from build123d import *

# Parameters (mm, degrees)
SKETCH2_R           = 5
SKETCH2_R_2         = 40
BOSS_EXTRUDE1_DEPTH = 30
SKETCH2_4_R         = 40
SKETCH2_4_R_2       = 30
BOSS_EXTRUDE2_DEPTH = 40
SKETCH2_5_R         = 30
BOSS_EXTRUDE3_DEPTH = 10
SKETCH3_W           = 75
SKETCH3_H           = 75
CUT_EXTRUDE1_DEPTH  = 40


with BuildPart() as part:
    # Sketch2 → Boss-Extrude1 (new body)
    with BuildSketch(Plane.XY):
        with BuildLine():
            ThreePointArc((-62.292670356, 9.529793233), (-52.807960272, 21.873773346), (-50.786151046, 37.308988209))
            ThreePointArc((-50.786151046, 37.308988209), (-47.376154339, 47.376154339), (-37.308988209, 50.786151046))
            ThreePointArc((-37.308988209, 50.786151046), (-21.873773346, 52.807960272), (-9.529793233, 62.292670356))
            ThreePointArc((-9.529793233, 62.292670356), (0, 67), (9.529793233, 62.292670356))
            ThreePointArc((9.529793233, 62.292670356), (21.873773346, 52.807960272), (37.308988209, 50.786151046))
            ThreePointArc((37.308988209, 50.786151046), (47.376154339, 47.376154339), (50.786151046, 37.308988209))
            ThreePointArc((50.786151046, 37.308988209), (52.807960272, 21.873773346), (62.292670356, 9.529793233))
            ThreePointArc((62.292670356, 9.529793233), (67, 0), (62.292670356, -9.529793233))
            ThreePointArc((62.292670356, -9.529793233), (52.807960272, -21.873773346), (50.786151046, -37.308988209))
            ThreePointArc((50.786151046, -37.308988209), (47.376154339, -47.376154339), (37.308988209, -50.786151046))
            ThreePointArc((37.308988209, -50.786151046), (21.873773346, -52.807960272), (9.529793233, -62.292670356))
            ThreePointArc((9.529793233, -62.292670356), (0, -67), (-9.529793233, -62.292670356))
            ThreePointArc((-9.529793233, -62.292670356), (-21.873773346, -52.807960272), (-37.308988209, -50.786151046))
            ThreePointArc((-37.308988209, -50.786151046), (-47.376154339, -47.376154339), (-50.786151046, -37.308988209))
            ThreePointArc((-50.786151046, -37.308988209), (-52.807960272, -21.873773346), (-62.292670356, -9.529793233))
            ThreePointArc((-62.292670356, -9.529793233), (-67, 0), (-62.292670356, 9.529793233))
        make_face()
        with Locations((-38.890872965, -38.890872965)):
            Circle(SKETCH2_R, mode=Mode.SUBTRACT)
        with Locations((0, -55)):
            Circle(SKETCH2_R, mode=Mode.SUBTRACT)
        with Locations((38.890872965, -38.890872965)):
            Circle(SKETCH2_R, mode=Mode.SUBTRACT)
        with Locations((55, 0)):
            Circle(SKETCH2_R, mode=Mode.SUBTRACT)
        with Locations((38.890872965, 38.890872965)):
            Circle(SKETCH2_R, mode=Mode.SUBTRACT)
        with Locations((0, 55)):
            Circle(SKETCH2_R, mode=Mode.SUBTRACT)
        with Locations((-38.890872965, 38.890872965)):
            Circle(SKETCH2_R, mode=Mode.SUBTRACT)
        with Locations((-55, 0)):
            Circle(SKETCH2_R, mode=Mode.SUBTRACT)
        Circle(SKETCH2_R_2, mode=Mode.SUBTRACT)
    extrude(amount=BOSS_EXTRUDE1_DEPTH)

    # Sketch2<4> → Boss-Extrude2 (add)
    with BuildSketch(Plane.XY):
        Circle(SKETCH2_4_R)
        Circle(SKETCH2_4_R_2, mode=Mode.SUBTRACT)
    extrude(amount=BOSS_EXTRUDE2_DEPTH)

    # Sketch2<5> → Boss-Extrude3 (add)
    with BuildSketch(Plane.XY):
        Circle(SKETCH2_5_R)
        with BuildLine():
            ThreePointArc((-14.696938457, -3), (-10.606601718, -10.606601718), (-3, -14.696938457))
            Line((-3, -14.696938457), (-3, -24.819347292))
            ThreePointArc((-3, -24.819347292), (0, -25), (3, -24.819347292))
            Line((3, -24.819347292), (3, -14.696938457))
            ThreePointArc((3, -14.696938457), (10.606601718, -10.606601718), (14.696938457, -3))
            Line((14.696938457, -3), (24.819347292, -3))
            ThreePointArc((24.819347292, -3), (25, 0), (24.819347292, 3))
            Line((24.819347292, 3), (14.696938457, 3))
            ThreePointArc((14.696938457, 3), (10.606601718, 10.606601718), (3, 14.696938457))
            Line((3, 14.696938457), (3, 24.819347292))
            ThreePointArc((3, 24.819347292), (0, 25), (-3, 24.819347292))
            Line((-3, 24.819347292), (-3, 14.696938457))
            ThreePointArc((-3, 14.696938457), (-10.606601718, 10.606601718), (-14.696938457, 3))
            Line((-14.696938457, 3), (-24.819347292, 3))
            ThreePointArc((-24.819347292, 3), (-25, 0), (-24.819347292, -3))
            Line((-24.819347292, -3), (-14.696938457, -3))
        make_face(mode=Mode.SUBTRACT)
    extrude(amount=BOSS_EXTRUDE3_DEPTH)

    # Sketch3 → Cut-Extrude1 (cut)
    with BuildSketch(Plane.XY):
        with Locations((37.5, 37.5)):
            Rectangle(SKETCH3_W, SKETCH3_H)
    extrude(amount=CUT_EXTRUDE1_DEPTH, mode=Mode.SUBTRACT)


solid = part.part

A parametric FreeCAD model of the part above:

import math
import FreeCAD as App
import Part
import Sketcher

V = App.Vector
Q = App.Units.Quantity


def add_polygon(sketch, points):
    """Adds a closed chain of lines whose ends are joined by coincident constraints."""
    first, n = sketch.GeometryCount, len(points)
    for a, b in zip(points, points[1:] + points[:1]):
        sketch.addGeometry(Part.LineSegment(App.Vector(*a, 0), App.Vector(*b, 0)), False)
    for i in range(n):
        sketch.addConstraint(Sketcher.Constraint("Coincident", first + i, 2, first + (i + 1) % n, 1))

doc = App.newDocument("Part")
params = doc.addObject("Spreadsheet::Sheet", "Params")
for row, (alias, value) in enumerate([
    ("sketch1_diameter", "10 mm"),
    ("sketch1_diameter2", "80 mm"),
    ("sketch1_radius", "30 mm"),
    ("sketch1_radius2", "12 mm"),
    ("pad1_length", "30 mm"),
    ("sketch2_diameter", "80 mm"),
    ("sketch2_diameter2", "60 mm"),
    ("pad2_length", "40 mm"),
    ("sketch3_diameter", "60 mm"),
    ("sketch3_radius", "15 mm"),
    ("sketch3_radius2", "25 mm"),
    ("pad3_length", "10 mm"),
    ("sketch4_width", "75 mm"),
    ("pocket1_length", "40 mm"),
], start=1):
    params.set(f"A{row}", alias)
    params.set(f"B{row}", "=" + value)
    params.setAlias(f"B{row}", alias)

body = doc.addObject("PartDesign::Body", "Body")

sketch1 = body.newObject("Sketcher::SketchObject", "Sketch")
sketch1.AttachmentSupport = (doc.getObject("XY_Plane"), [""])
sketch1.MapMode = "FlatFace"
sketch1.addGeometry([
    Part.ArcOfCircle(Part.Circle(V(-81, 33, 0), V(0, 0, 1), 30), math.radians(-53), math.radians(8)),
    Part.ArcOfCircle(Part.Circle(V(-55, 0, 0), V(0, 0, 1), 12), math.radians(127), math.radians(233)),
    Part.ArcOfCircle(Part.Circle(V(-81, -33, 0), V(0, 0, 1), 30), math.radians(-8), math.radians(53)),
    Part.ArcOfCircle(Part.Circle(V(-39, -39, 0), V(0, 0, 1), 12), math.radians(172), math.radians(278)),
    Part.ArcOfCircle(Part.Circle(V(-33, -81, 0), V(0, 0, 1), 30), math.radians(37), math.radians(98)),
    Part.ArcOfCircle(Part.Circle(V(0, -55, 0), V(0, 0, 1), 12), math.radians(-143), math.radians(-37)),
    Part.ArcOfCircle(Part.Circle(V(33, -81, 0), V(0, 0, 1), 30), math.radians(82), math.radians(143)),
    Part.ArcOfCircle(Part.Circle(V(39, -39, 0), V(0, 0, 1), 12), math.radians(-98), math.radians(8)),
    Part.ArcOfCircle(Part.Circle(V(81, -33, 0), V(0, 0, 1), 30), math.radians(127), math.radians(188)),
    Part.ArcOfCircle(Part.Circle(V(55, 0, 0), V(0, 0, 1), 12), math.radians(-53), math.radians(53)),
    Part.ArcOfCircle(Part.Circle(V(81, 33, 0), V(0, 0, 1), 30), math.radians(172), math.radians(233)),
    Part.ArcOfCircle(Part.Circle(V(39, 39, 0), V(0, 0, 1), 12), math.radians(-8), math.radians(98)),
    Part.ArcOfCircle(Part.Circle(V(33, 81, 0), V(0, 0, 1), 30), math.radians(-143), math.radians(-82)),
    Part.ArcOfCircle(Part.Circle(V(0, 55, 0), V(0, 0, 1), 12), math.radians(37), math.radians(143)),
    Part.ArcOfCircle(Part.Circle(V(-33, 81, 0), V(0, 0, 1), 30), math.radians(-98), math.radians(-37)),
    Part.ArcOfCircle(Part.Circle(V(-39, 39, 0), V(0, 0, 1), 12), math.radians(82), math.radians(188)),
    Part.Circle(V(39, -39, 0), V(0, 0, 1), 5),
    Part.Circle(V(0, -55, 0), V(0, 0, 1), 5),
    Part.Circle(V(-39, -39, 0), V(0, 0, 1), 5),
    Part.Circle(V(55, 0, 0), V(0, 0, 1), 5),
    Part.Circle(V(39, 39, 0), V(0, 0, 1), 5),
    Part.Circle(V(0, 0, 0), V(0, 0, 1), 40),
    Part.Circle(V(-55, 0, 0), V(0, 0, 1), 5),
    Part.Circle(V(0, 55, 0), V(0, 0, 1), 5),
    Part.Circle(V(-39, 39, 0), V(0, 0, 1), 5),
], False)
sketch1.addConstraint([
    Sketcher.Constraint("Tangent", 0, 1, 1, 1),
    Sketcher.Constraint("Tangent", 1, 2, 2, 2),
    Sketcher.Constraint("Tangent", 2, 1, 3, 1),
    Sketcher.Constraint("Tangent", 3, 2, 4, 2),
    Sketcher.Constraint("Tangent", 4, 1, 5, 1),
    Sketcher.Constraint("Tangent", 5, 2, 6, 2),
    Sketcher.Constraint("Tangent", 6, 1, 7, 1),
    Sketcher.Constraint("Tangent", 7, 2, 8, 2),
    Sketcher.Constraint("Tangent", 8, 1, 9, 1),
    Sketcher.Constraint("Tangent", 9, 2, 10, 2),
    Sketcher.Constraint("Tangent", 10, 1, 11, 1),
    Sketcher.Constraint("Tangent", 11, 2, 12, 2),
    Sketcher.Constraint("Tangent", 12, 1, 13, 1),
    Sketcher.Constraint("Tangent", 13, 2, 14, 2),
    Sketcher.Constraint("Tangent", 14, 1, 15, 1),
    Sketcher.Constraint("Tangent", 15, 2, 0, 2),
    Sketcher.Constraint("Coincident", 21, 3, -1, 1),
    Sketcher.Constraint("Coincident", 16, 3, 7, 3),
    Sketcher.Constraint("Coincident", 17, 3, 5, 3),
    Sketcher.Constraint("Coincident", 18, 3, 3, 3),
    Sketcher.Constraint("Coincident", 19, 3, 9, 3),
    Sketcher.Constraint("Coincident", 20, 3, 11, 3),
    Sketcher.Constraint("Coincident", 22, 3, 1, 3),
    Sketcher.Constraint("Coincident", 23, 3, 13, 3),
    Sketcher.Constraint("Coincident", 24, 3, 15, 3),
    Sketcher.Constraint("Equal", 0, 2),
    Sketcher.Constraint("Equal", 1, 3),
    Sketcher.Constraint("Equal", 2, 4),
    Sketcher.Constraint("Equal", 3, 5),
    Sketcher.Constraint("Equal", 4, 6),
    Sketcher.Constraint("Equal", 5, 7),
    Sketcher.Constraint("Equal", 6, 8),
    Sketcher.Constraint("Equal", 7, 9),
    Sketcher.Constraint("Equal", 8, 10),
    Sketcher.Constraint("Equal", 9, 11),
    Sketcher.Constraint("Equal", 10, 12),
    Sketcher.Constraint("Equal", 11, 13),
    Sketcher.Constraint("Equal", 12, 14),
    Sketcher.Constraint("Equal", 13, 15),
    Sketcher.Constraint("Equal", 16, 17),
    Sketcher.Constraint("Equal", 17, 18),
    Sketcher.Constraint("Equal", 18, 19),
    Sketcher.Constraint("Equal", 19, 20),
    Sketcher.Constraint("Equal", 20, 22),
    Sketcher.Constraint("Equal", 22, 23),
    Sketcher.Constraint("Equal", 23, 24),
    Sketcher.Constraint("Symmetric", 0, 3, 8, 3, -1, 1),
    Sketcher.Constraint("Symmetric", 2, 3, 10, 3, -1, 1),
    Sketcher.Constraint("Symmetric", 4, 3, 12, 3, -1, 1),
    Sketcher.Constraint("Symmetric", 6, 3, 14, 3, -1, 1),
    Sketcher.Constraint("Symmetric", 4, 3, 6, 3, -2),
    Sketcher.Constraint("Symmetric", 2, 3, 8, 3, -2),
    Sketcher.Constraint("Diameter", 16, Q("10 mm")),
    Sketcher.Constraint("Diameter", 21, Q("80 mm")),
    Sketcher.Constraint("Radius", 0, Q("30 mm")),
    Sketcher.Constraint("Radius", 1, Q("12 mm")),
    Sketcher.Constraint("DistanceX", 1, 3, -1, 1, Q("55 mm")),
    Sketcher.Constraint("DistanceY", 5, 3, -1, 1, Q("55 mm")),
    Sketcher.Constraint("DistanceX", 0, 1, -1, 1, Q("62.29267 mm")),
    Sketcher.Constraint("DistanceX", 2, 1, -1, 1, Q("50.786151 mm")),
])
sketch1.setExpression("Constraints[52]", "Params.sketch1_diameter")
sketch1.setExpression("Constraints[53]", "Params.sketch1_diameter2")
sketch1.setExpression("Constraints[54]", "Params.sketch1_radius")
sketch1.setExpression("Constraints[55]", "Params.sketch1_radius2")
pad1 = body.newObject("PartDesign::Pad", "Pad")
pad1.Profile = sketch1
pad1.setExpression("Length", "Params.pad1_length")

sketch2 = body.newObject("Sketcher::SketchObject", "Sketch001")
sketch2.AttachmentSupport = (doc.getObject("XY_Plane"), [""])
sketch2.MapMode = "FlatFace"
sketch2.addGeometry([
    Part.Circle(V(0, 0, 0), V(0, 0, 1), 40),
    Part.Circle(V(0, 0, 0), V(0, 0, 1), 30),
], False)
sketch2.addConstraint([
    Sketcher.Constraint("Coincident", 0, 3, -1, 1),
    Sketcher.Constraint("Coincident", 1, 3, -1, 1),
    Sketcher.Constraint("Diameter", 0, Q("80 mm")),
    Sketcher.Constraint("Diameter", 1, Q("60 mm")),
])
sketch2.setExpression("Constraints[2]", "Params.sketch2_diameter")
sketch2.setExpression("Constraints[3]", "Params.sketch2_diameter2")
pad2 = body.newObject("PartDesign::Pad", "Pad001")
pad2.Profile = sketch2
pad2.setExpression("Length", "Params.pad2_length")

sketch3 = body.newObject("Sketcher::SketchObject", "Sketch002")
sketch3.AttachmentSupport = (doc.getObject("XY_Plane"), [""])
sketch3.MapMode = "FlatFace"
sketch3.addGeometry([
    Part.Circle(V(0, 0, 0), V(0, 0, 1), 30),
    Part.ArcOfCircle(Part.Circle(V(0, 0, 0), V(0, 0, 1), 15), math.radians(-168), math.radians(-102)),
    Part.LineSegment(V(-15, -3, 0), V(-25, -3, 0)),
    Part.ArcOfCircle(Part.Circle(V(0, 0, 0), V(0, 0, 1), 25), math.radians(173.11), math.radians(186.89)),
    Part.LineSegment(V(-25, 3, 0), V(-15, 3, 0)),
    Part.ArcOfCircle(Part.Circle(V(0, 0, 0), V(0, 0, 1), 15), math.radians(102), math.radians(168)),
    Part.LineSegment(V(-3, 15, 0), V(-3, 25, 0)),
    Part.ArcOfCircle(Part.Circle(V(0, 0, 0), V(0, 0, 1), 25), math.radians(83.11), math.radians(96.89)),
    Part.LineSegment(V(3, 25, 0), V(3, 15, 0)),
    Part.ArcOfCircle(Part.Circle(V(0, 0, 0), V(0, 0, 1), 15), math.radians(12), math.radians(78)),
    Part.LineSegment(V(15, 3, 0), V(25, 3, 0)),
    Part.ArcOfCircle(Part.Circle(V(0, 0, 0), V(0, 0, 1), 25), math.radians(-6.89), math.radians(6.89)),
    Part.LineSegment(V(25, -3, 0), V(15, -3, 0)),
    Part.ArcOfCircle(Part.Circle(V(0, 0, 0), V(0, 0, 1), 15), math.radians(-78), math.radians(-12)),
    Part.LineSegment(V(3, -15, 0), V(3, -25, 0)),
    Part.ArcOfCircle(Part.Circle(V(0, 0, 0), V(0, 0, 1), 25), math.radians(-96.89), math.radians(-83.11)),
    Part.LineSegment(V(-3, -25, 0), V(-3, -15, 0)),
], False)
sketch3.addConstraint([
    Sketcher.Constraint("Coincident", 1, 1, 2, 1),
    Sketcher.Constraint("Coincident", 2, 2, 3, 2),
    Sketcher.Constraint("Coincident", 3, 1, 4, 1),
    Sketcher.Constraint("Coincident", 4, 2, 5, 2),
    Sketcher.Constraint("Coincident", 5, 1, 6, 1),
    Sketcher.Constraint("Coincident", 6, 2, 7, 2),
    Sketcher.Constraint("Coincident", 7, 1, 8, 1),
    Sketcher.Constraint("Coincident", 8, 2, 9, 2),
    Sketcher.Constraint("Coincident", 9, 1, 10, 1),
    Sketcher.Constraint("Coincident", 10, 2, 11, 2),
    Sketcher.Constraint("Coincident", 11, 1, 12, 1),
    Sketcher.Constraint("Coincident", 12, 2, 13, 2),
    Sketcher.Constraint("Coincident", 13, 1, 14, 1),
    Sketcher.Constraint("Coincident", 14, 2, 15, 2),
    Sketcher.Constraint("Coincident", 15, 1, 16, 1),
    Sketcher.Constraint("Coincident", 16, 2, 1, 2),
    Sketcher.Constraint("Horizontal", 2),
    Sketcher.Constraint("Horizontal", 4),
    Sketcher.Constraint("Vertical", 6),
    Sketcher.Constraint("Vertical", 8),
    Sketcher.Constraint("Horizontal", 10),
    Sketcher.Constraint("Horizontal", 12),
    Sketcher.Constraint("Vertical", 14),
    Sketcher.Constraint("Vertical", 16),
    Sketcher.Constraint("Coincident", 0, 3, -1, 1),
    Sketcher.Constraint("Coincident", 1, 3, -1, 1),
    Sketcher.Constraint("Coincident", 3, 3, -1, 1),
    Sketcher.Constraint("Coincident", 5, 3, -1, 1),
    Sketcher.Constraint("Coincident", 7, 3, -1, 1),
    Sketcher.Constraint("Coincident", 9, 3, -1, 1),
    Sketcher.Constraint("Coincident", 11, 3, -1, 1),
    Sketcher.Constraint("Coincident", 13, 3, -1, 1),
    Sketcher.Constraint("Coincident", 15, 3, -1, 1),
    Sketcher.Constraint("Equal", 1, 5),
    Sketcher.Constraint("Equal", 3, 7),
    Sketcher.Constraint("Equal", 5, 9),
    Sketcher.Constraint("Equal", 7, 11),
    Sketcher.Constraint("Equal", 9, 13),
    Sketcher.Constraint("Equal", 11, 15),
    Sketcher.Constraint("Horizontal", 6, 2, 7, 1),
    Sketcher.Constraint("Horizontal", 4, 2, 9, 1),
    Sketcher.Constraint("Horizontal", 2, 2, 11, 1),
    Sketcher.Constraint("Horizontal", 14, 2, 15, 1),
    Sketcher.Constraint("Vertical", 2, 2, 3, 1),
    Sketcher.Constraint("Vertical", 8, 2, 13, 1),
    Sketcher.Constraint("Equal", 12, 6),
    Sketcher.Constraint("Diameter", 0, Q("60 mm")),
    Sketcher.Constraint("Radius", 1, Q("15 mm")),
    Sketcher.Constraint("Radius", 3, Q("25 mm")),
    Sketcher.Constraint("DistanceY", 1, 1, -1, 1, Q("3 mm")),
])
sketch3.setExpression("Constraints[46]", "Params.sketch3_diameter")
sketch3.setExpression("Constraints[47]", "Params.sketch3_radius")
sketch3.setExpression("Constraints[48]", "Params.sketch3_radius2")
pad3 = body.newObject("PartDesign::Pad", "Pad002")
pad3.Profile = sketch3
pad3.setExpression("Length", "Params.pad3_length")

sketch4 = body.newObject("Sketcher::SketchObject", "Sketch003")
sketch4.AttachmentSupport = (doc.getObject("XY_Plane"), [""])
sketch4.MapMode = "FlatFace"
add_polygon(sketch4, [(0, 75), (0, 0), (75, 0), (75, 75)])
sketch4.addConstraint([
    Sketcher.Constraint("Vertical", 0),
    Sketcher.Constraint("Horizontal", 1),
    Sketcher.Constraint("Vertical", 2),
    Sketcher.Constraint("Horizontal", 3),
    Sketcher.Constraint("Coincident", 0, 2, -1, 1),
    Sketcher.Constraint("Equal", 3, 0),
    Sketcher.Constraint("DistanceX", 1, 1, 1, 2, Q("75 mm")),
])
sketch4.setExpression("Constraints[10]", "Params.sketch4_width")
pocket1 = body.newObject("PartDesign::Pocket", "Pocket")
pocket1.Profile = sketch4
pocket1.setExpression("Length", "Params.pocket1_length")
pocket1.Reversed = True

doc.recompute()
